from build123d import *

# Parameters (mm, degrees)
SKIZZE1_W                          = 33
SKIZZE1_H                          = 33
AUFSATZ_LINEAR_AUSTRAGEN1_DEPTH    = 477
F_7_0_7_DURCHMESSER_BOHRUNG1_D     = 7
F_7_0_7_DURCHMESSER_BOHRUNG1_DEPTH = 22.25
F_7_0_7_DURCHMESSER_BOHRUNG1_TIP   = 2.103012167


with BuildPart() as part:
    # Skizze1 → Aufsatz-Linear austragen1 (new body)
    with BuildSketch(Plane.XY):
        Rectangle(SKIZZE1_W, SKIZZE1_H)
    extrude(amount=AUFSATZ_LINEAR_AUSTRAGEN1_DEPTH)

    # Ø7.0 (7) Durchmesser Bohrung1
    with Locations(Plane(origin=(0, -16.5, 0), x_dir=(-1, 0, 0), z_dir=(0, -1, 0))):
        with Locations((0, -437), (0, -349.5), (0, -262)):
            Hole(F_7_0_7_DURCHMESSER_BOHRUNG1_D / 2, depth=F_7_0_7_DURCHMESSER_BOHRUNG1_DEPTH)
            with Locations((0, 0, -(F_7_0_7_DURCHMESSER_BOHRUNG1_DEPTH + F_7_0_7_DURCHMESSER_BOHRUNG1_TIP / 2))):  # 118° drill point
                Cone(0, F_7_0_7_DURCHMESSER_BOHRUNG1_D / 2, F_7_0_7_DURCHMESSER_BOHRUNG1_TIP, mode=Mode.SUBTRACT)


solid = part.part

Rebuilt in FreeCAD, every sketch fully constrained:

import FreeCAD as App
import Part
import Sketcher
from FreeCAD import Vector
Q = App.Units.Quantity


def add_polygon(sketch, points):
    """Adds a closed chain of lines whose ends are joined by coincident constraints."""
    first, n = sketch.GeometryCount, len(points)
    for a, b in zip(points, points[1:] + points[:1]):
        sketch.addGeometry(Part.LineSegment(App.Vector(*a, 0), App.Vector(*b, 0)), False)
    for i in range(n):
        sketch.addConstraint(Sketcher.Constraint("Coincident", first + i, 2, first + (i + 1) % n, 1))

doc = App.newDocument("Part")
body = doc.addObject("PartDesign::Body", "Body")

sketch1 = doc.addObject("Sketcher::SketchObject", "Sketch")
body.addObject(sketch1)
sketch1.AttachmentSupport = (doc.XY_Plane, [""])
sketch1.MapMode = "FlatFace"
add_polygon(sketch1, [(-16, 16), (-16, -16), (16, -16), (16, 16)])
sketch1.addConstraint([
    Sketcher.Constraint("Vertical", 0),
    Sketcher.Constraint("Horizontal", 1),
    Sketcher.Constraint("Vertical", 2),
    Sketcher.Constraint("Horizontal", 3),
    Sketcher.Constraint("Symmetric", 0, 2, 2, 2, -1, 1),
    Sketcher.Constraint("Equal", 3, 0),
    Sketcher.Constraint("DistanceX", 1, 1, 1, 2, Q("33 mm")),
])
pad1 = doc.addObject("PartDesign::Pad", "Pad")
body.addObject(pad1)
pad1.Profile = sketch1
pad1.Length = 477

sketch2 = doc.addObject("Sketcher::SketchObject", "Sketch001")
body.addObject(sketch2)
sketch2.AttachmentSupport = (doc.XZ_Plane, [""])
sketch2.MapMode = "FlatFace"
sketch2.AttachmentOffset = App.Placement(Vector(0, 0, 16.5), App.Rotation())
sketch2.addGeometry([
    Part.Circle(Vector(0, 437, 0), Vector(0, 0, 1), 3.5),
    Part.Circle(Vector(0, 349.5, 0), Vector(0, 0, 1), 3.5),
    Part.Circle(Vector(0, 262, 0), Vector(0, 0, 1), 3.5),
], False)
sketch2.addConstraint([
    Sketcher.Constraint("Equal", 0, 1),
    Sketcher.Constraint("Equal", 1, 2),
    Sketcher.Constraint("PointOnObject", 0, 3, -2),
    Sketcher.Constraint("PointOnObject", 1, 3, -2),
    Sketcher.Constraint("PointOnObject", 2, 3, -2),
    Sketcher.Constraint("Diameter", 0, Q("7 mm")),
    Sketcher.Constraint("DistanceY", -1, 1, 0, 3, Q("437 mm")),
    Sketcher.Constraint("DistanceY", -1, 1, 2, 3, Q("262 mm")),
    Sketcher.Constraint("DistanceY", -1, 1, 1, 3, Q("349.5 mm")),
])
doc.recompute()
hole = doc.addObject("PartDesign::Hole", "Hole")
body.addObject(hole)
hole.Profile = sketch2
hole.ThreadType = "None"
hole.Diameter = 7
hole.DepthType = "Dimension"
hole.Depth = 22.25
hole.DrillPoint = "Angled"
hole.DrillPointAngle = 118

doc.recompute()
